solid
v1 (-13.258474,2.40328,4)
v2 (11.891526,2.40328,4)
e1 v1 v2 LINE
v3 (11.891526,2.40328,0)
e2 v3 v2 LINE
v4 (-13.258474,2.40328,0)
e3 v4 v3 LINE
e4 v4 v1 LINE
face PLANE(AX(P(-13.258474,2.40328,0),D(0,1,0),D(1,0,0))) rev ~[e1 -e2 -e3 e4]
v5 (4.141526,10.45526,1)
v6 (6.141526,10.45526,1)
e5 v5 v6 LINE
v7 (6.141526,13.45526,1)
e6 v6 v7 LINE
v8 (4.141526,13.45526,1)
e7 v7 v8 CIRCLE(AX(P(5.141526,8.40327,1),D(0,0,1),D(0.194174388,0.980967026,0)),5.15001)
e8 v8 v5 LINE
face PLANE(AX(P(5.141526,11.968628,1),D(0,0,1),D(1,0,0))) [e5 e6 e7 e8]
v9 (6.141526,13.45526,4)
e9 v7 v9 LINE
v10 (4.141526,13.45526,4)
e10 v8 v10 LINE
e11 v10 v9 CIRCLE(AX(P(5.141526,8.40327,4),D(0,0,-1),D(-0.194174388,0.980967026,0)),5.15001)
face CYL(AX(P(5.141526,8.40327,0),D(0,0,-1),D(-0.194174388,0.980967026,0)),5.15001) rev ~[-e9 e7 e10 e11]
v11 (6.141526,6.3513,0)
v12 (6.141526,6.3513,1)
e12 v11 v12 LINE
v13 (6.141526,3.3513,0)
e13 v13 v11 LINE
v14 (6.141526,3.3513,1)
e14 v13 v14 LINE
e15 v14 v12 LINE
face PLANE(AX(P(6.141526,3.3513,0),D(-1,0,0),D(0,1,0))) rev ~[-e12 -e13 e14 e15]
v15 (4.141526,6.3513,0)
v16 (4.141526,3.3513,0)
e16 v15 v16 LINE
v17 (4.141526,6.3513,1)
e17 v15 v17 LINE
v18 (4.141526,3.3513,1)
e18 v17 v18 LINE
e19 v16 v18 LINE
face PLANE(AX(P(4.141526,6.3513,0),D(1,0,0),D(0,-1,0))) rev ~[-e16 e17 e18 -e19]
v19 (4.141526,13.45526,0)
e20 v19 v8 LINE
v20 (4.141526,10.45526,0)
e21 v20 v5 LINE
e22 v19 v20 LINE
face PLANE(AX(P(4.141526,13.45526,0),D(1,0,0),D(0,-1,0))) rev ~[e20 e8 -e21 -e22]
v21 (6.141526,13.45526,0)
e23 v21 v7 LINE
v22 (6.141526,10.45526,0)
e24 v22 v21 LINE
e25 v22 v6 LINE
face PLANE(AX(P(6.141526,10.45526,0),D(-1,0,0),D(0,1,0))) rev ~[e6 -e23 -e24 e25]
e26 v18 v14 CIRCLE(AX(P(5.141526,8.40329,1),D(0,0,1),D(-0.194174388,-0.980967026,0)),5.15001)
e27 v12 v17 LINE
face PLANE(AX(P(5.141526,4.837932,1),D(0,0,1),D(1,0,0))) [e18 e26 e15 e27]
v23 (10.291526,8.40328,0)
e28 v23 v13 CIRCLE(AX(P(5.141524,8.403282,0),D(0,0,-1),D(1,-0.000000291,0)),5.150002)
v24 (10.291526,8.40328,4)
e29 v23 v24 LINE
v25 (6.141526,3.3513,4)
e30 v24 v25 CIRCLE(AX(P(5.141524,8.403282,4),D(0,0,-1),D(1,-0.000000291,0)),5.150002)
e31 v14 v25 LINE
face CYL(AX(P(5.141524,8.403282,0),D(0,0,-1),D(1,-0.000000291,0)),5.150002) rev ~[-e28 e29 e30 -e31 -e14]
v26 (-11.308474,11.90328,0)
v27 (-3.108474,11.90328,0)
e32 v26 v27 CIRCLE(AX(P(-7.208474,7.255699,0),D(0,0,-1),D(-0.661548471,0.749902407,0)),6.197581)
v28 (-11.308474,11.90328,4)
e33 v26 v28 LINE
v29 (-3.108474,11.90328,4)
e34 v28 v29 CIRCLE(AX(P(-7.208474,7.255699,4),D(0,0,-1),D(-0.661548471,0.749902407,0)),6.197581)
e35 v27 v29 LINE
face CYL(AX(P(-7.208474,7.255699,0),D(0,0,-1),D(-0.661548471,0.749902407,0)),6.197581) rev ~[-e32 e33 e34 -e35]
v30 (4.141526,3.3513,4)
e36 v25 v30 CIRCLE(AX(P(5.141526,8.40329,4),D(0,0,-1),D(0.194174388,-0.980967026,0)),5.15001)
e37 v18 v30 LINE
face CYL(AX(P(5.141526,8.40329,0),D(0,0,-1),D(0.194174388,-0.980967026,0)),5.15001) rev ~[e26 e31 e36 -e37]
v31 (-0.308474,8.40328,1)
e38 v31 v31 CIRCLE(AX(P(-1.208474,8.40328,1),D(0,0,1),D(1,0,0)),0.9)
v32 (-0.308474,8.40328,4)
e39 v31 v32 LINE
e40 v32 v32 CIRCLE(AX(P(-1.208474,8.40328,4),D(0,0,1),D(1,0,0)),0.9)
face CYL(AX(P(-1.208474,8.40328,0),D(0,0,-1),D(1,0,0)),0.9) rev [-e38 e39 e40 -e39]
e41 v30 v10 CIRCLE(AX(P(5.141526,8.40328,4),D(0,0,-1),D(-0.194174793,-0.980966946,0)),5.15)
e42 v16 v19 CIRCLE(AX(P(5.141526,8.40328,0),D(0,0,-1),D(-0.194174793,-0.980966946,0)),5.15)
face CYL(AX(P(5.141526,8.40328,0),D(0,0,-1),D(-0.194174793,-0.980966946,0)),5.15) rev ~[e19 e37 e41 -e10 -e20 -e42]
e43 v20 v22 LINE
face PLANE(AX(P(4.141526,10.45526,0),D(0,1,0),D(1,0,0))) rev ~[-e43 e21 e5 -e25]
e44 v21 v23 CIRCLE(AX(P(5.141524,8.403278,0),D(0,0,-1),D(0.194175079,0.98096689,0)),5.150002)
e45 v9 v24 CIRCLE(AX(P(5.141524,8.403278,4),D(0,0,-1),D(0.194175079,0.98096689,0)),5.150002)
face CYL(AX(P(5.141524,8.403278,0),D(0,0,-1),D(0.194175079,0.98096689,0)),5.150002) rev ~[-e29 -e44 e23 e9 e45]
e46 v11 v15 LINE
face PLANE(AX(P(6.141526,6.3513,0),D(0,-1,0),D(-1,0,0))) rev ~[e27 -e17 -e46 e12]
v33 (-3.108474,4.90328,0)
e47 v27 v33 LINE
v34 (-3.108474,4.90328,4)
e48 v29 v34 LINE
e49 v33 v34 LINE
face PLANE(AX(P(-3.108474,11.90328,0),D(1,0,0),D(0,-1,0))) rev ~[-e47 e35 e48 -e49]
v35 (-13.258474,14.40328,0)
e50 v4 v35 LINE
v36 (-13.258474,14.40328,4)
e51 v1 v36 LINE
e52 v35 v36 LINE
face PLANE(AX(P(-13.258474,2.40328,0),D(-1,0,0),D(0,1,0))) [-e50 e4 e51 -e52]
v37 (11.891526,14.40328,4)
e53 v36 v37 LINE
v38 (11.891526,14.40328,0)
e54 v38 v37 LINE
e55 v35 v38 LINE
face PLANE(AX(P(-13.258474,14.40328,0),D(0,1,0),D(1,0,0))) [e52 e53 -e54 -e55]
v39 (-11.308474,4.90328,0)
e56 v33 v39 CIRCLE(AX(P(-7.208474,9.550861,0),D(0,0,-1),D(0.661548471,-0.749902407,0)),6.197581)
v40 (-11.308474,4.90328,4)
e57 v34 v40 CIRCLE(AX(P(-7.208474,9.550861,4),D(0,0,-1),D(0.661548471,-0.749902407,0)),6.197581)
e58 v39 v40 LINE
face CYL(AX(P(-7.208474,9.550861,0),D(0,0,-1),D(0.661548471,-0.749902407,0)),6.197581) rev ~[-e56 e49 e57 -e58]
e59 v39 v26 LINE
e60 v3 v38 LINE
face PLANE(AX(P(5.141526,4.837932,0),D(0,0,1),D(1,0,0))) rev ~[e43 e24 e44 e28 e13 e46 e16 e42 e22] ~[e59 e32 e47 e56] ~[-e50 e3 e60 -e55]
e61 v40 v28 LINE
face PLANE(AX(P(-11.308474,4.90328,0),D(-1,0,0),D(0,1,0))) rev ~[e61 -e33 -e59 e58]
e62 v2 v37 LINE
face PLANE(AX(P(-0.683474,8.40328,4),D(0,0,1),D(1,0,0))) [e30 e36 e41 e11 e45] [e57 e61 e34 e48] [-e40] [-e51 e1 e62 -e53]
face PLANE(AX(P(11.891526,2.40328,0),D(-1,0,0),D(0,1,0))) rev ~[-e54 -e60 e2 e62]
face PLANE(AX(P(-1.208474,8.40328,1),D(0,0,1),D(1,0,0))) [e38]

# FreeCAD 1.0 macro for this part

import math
import FreeCAD as App
import Part
import Sketcher

V = App.Vector
Q = App.Units.Quantity


def add_polygon(sketch, points):
    """Adds a closed chain of lines whose ends are joined by coincident constraints."""
    first, n = sketch.GeometryCount, len(points)
    for a, b in zip(points, points[1:] + points[:1]):
        sketch.addGeometry(Part.LineSegment(App.Vector(*a, 0), App.Vector(*b, 0)), False)
    for i in range(n):
        sketch.addConstraint(Sketcher.Constraint("Coincident", first + i, 2, first + (i + 1) % n, 1))

doc = App.newDocument("Part")
body = doc.addObject("PartDesign::Body", "Body")

# Sketch on XY plane
sketch1 = doc.addObject("Sketcher::SketchObject", "Sketch")
body.addObject(sketch1)
sketch1.AttachmentSupport = (doc.XY_Plane, [""])
sketch1.MapMode = "FlatFace"
add_polygon(sketch1, [(-13.258474, 14.40328), (-13.258474, 2.40328), (11.891526, 2.40328), (11.891526, 14.40328)])  # lines 0-3
sketch1.addGeometry(Part.LineSegment(V(-11.308474, 4.90328, 0), V(-11.308474, 11.90328, 0)), False)  # 4
sketch1.addGeometry(Part.ArcOfCircle(Part.Circle(V(-7.208474, 7.255699, 0), V(0, 0, 1), 6.197581), math.radians(48.581925), math.radians(131.418075)), False)  # 5
sketch1.addGeometry(Part.LineSegment(V(-3.108474, 11.90328, 0), V(-3.108474, 4.90328, 0)), False)  # 6
sketch1.addGeometry(Part.ArcOfCircle(Part.Circle(V(-7.208474, 9.550861, 0), V(0, 0, 1), 6.197581), math.radians(-131.418075), math.radians(-48.581925)), False)  # 7
sketch1.addGeometry(Part.Circle(V(-1.208474, 8.40328, 0), V(0, 0, 1), 0.9), False)  # 8
sketch1.addGeometry(Part.ArcOfCircle(Part.Circle(V(5.141524, 8.403282, 0), V(0, 0, 1), 5.150002), math.radians(-78.803462), math.radians(-0.000017)), False)  # 9
sketch1.addGeometry(Part.ArcOfCircle(Part.Circle(V(5.141526, 8.40329, 0), V(0, 0, 1), 5.15001), math.radians(-101.196498), math.radians(-78.803502)), False)  # 10
sketch1.addGeometry(Part.ArcOfCircle(Part.Circle(V(5.141526, 8.40328, 0), V(0, 0, 1), 5.15), math.radians(101.196521), math.radians(258.803479)), False)  # 11
sketch1.addGeometry(Part.ArcOfCircle(Part.Circle(V(5.141526, 8.40327, 0), V(0, 0, 1), 5.15001), math.radians(78.803502), math.radians(101.196498)), False)  # 12
sketch1.addGeometry(Part.ArcOfCircle(Part.Circle(V(5.141524, 8.403278, 0), V(0, 0, 1), 5.150002), math.radians(0.000017), math.radians(78.803462)), False)  # 13
sketch1.addConstraint([
    Sketcher.Constraint("Coincident", 4, 2, 5, 2),
    Sketcher.Constraint("Coincident", 5, 1, 6, 1),
    Sketcher.Constraint("Coincident", 6, 2, 7, 2),
    Sketcher.Constraint("Coincident", 7, 1, 4, 1),
    Sketcher.Constraint("Tangent", 9, 1, 10, 2),
    Sketcher.Constraint("Tangent", 10, 1, 11, 2),
    Sketcher.Constraint("Tangent", 11, 1, 12, 2),
    Sketcher.Constraint("Tangent", 12, 1, 13, 2),
    Sketcher.Constraint("Tangent", 13, 1, 9, 2),
    Sketcher.Constraint("Vertical", 0),
    Sketcher.Constraint("Horizontal", 1),
    Sketcher.Constraint("Vertical", 2),
    Sketcher.Constraint("Horizontal", 3),
    Sketcher.Constraint("Vertical", 4),
    Sketcher.Constraint("Vertical", 6),
    Sketcher.Constraint("Coincident", 11, 3, 9, 3),
    Sketcher.Constraint("Equal", 5, 7),
    Sketcher.Constraint("Horizontal", 8, 3, 9, 3),
    Sketcher.Constraint("Horizontal", 4, 2, 5, 1),
    Sketcher.Constraint("Horizontal", 6, 2, 7, 1),
    Sketcher.Constraint("Horizontal", 9, 1, 10, 1),
    Sketcher.Constraint("Horizontal", 11, 1, 12, 1),
    Sketcher.Constraint("Horizontal", 11, 3, 13, 1),
    Sketcher.Constraint("Vertical", 10, 1, 11, 1),
    Sketcher.Constraint("Diameter", 8, Q("1.8 mm")),
    Sketcher.Constraint("DistanceY", 0, 2, 0, 1, Q("12 mm")),
    Sketcher.Constraint("DistanceY", 4, 1, 4, 2, Q("7 mm")),
    Sketcher.Constraint("Radius", 11, Q("5.15 mm")),
    Sketcher.Constraint("DistanceX", 5, 3, 8, 3, Q("6 mm")),
    Sketcher.Constraint("DistanceY", 0, 2, 8, 3, Q("6 mm")),
    Sketcher.Constraint("DistanceX", 12, 3, 9, 1, Q("1 mm")),
    Sketcher.Constraint("DistanceX", 1, 1, 1, 2, Q("25.15 mm")),
    Sketcher.Constraint("DistanceX", 0, 2, 12, 3, Q("18.4 mm")),
    Sketcher.Constraint("DistanceY", 4, 2, 3, 2, Q("2.5 mm")),
    Sketcher.Constraint("DistanceX", 4, 2, 7, 3, Q("4.1 mm")),
    Sketcher.Constraint("Radius", 5, Q("6.197581 mm")),
    Sketcher.Constraint("DistanceX", 8, 3, 10, 3, Q("6.35 mm")),
    Sketcher.Constraint("DistanceY", -1, 1, 5, 3, Q("7.255699 mm")),
    Sketcher.Constraint("DistanceX", 5, 3, -1, 1, Q("7.208474 mm")),
])
pad1 = doc.addObject("PartDesign::Pad", "Pad")
body.addObject(pad1)
pad1.Profile = sketch1
pad1.Length = 4

# Sketch on XY plane
sketch2 = doc.addObject("Sketcher::SketchObject", "Sketch001")
body.addObject(sketch2)
sketch2.AttachmentSupport = (doc.XY_Plane, [""])
sketch2.MapMode = "FlatFace"
sketch2.addGeometry([
    Part.LineSegment(V(4.141526, 6.3513, 0), V(4.141526, 3.3513, 0)),  # 0
    Part.ArcOfCircle(Part.Circle(V(5.141526, 8.40329, 0), V(0, 0, 1), 5.15001), math.radians(-101.196498), math.radians(-78.803502)),  # 1
    Part.LineSegment(V(6.141526, 3.3513, 0), V(6.141526, 6.3513, 0)),  # 2
    Part.LineSegment(V(6.141526, 6.3513, 0), V(4.141526, 6.3513, 0)),  # 3
    Part.ArcOfCircle(Part.Circle(V(5.141526, 8.40327, 0), V(0, 0, 1), 5.15001), math.radians(78.803502), math.radians(101.196498)),  # 4
    Part.LineSegment(V(4.141526, 13.45526, 0), V(4.141526, 10.45526, 0)),  # 5
    Part.LineSegment(V(4.141526, 10.45526, 0), V(6.141526, 10.45526, 0)),  # 6
    Part.LineSegment(V(6.141526, 10.45526, 0), V(6.141526, 13.45526, 0)),  # 7
    Part.Circle(V(-1.208474, 8.40328, 0), V(0, 0, 1), 0.9),  # 8
], False)
sketch2.addConstraint([
    Sketcher.Constraint("Coincident", 0, 2, 1, 1),
    Sketcher.Constraint("Coincident", 1, 2, 2, 1),
    Sketcher.Constraint("Coincident", 2, 2, 3, 1),
    Sketcher.Constraint("Coincident", 3, 2, 0, 1),
    Sketcher.Constraint("Coincident", 4, 2, 5, 1),
    Sketcher.Constraint("Coincident", 5, 2, 6, 1),
    Sketcher.Constraint("Coincident", 6, 2, 7, 1),
    Sketcher.Constraint("Coincident", 7, 2, 4, 1),
    Sketcher.Constraint("Vertical", 0),
    Sketcher.Constraint("Vertical", 2),
    Sketcher.Constraint("Horizontal", 3),
    Sketcher.Constraint("Vertical", 5),
    Sketcher.Constraint("Horizontal", 6),
    Sketcher.Constraint("Vertical", 7),
    Sketcher.Constraint("Equal", 1, 4),
    Sketcher.Constraint("Horizontal", 0, 2, 1, 2),
    Sketcher.Constraint("Horizontal", 4, 2, 7, 2),
    Sketcher.Constraint("Vertical", 1, 3, 4, 3),
    Sketcher.Constraint("Vertical", 3, 2, 4, 2),
    Sketcher.Constraint("Equal", 2, 5),
    Sketcher.Constraint("Diameter", 8, Q("1.8 mm")),
    Sketcher.Constraint("DistanceX", 3, 2, 3, 1, Q("2 mm")),
    Sketcher.Constraint("DistanceY", 0, 2, 0, 1, Q("3 mm")),
    Sketcher.Constraint("Radius", 1, Q("5.15001 mm")),
    Sketcher.Constraint("DistanceX", 8, 3, 1, 3, Q("6.35 mm")),
    Sketcher.Constraint("DistanceY", -1, 1, 0, 2, Q("3.3513 mm")),
    Sketcher.Constraint("DistanceY", -1, 1, 4, 3, Q("8.40327 mm")),
    Sketcher.Constraint("DistanceY", -1, 1, 8, 3, Q("8.40328 mm")),
    Sketcher.Constraint("DistanceX", -1, 1, 1, 3, Q("5.141526 mm")),
])
pad2 = doc.addObject("PartDesign::Pad", "Pad001")
body.addObject(pad2)
pad2.Profile = sketch2
pad2.Length = 1

doc.recompute()
